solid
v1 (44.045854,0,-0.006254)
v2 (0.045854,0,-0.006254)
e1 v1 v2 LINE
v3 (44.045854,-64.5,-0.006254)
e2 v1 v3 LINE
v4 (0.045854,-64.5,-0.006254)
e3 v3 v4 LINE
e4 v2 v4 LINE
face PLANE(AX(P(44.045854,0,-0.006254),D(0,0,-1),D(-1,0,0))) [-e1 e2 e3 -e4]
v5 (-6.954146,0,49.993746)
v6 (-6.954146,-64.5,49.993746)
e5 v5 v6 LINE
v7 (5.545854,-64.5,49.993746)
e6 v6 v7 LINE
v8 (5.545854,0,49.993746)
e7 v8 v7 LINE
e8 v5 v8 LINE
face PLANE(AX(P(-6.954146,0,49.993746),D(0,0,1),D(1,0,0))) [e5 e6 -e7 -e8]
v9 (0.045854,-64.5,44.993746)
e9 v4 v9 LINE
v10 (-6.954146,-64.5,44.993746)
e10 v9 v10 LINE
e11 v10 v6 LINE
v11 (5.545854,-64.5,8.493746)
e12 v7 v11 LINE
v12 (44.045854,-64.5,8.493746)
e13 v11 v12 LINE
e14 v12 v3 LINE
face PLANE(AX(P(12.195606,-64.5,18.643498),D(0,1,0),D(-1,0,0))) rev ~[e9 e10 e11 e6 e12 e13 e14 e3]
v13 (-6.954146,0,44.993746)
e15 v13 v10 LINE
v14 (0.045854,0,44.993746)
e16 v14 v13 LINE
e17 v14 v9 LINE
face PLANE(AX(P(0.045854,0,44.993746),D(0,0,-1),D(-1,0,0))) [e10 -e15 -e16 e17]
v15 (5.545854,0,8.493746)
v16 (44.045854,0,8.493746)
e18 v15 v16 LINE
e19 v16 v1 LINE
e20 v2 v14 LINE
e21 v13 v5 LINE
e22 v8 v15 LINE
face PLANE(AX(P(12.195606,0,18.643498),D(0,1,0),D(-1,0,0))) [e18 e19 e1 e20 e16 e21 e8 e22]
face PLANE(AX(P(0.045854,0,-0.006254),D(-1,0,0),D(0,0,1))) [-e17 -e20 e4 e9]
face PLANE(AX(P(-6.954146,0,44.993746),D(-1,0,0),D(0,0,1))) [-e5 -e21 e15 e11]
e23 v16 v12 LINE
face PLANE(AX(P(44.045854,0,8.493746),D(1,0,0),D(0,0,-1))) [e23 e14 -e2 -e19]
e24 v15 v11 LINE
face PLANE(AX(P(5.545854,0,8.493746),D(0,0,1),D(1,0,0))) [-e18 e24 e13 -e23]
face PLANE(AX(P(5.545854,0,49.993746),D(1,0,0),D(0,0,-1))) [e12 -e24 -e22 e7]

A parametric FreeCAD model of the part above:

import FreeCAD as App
import Part
import Sketcher

doc = App.newDocument("Part")
body = doc.addObject("PartDesign::Body", "Body")

# Sketch on XZ plane
sketch1 = doc.addObject("Sketcher::SketchObject", "Sketch")
body.addObject(sketch1)
sketch1.AttachmentSupport = (doc.XZ_Plane, [""])
sketch1.MapMode = "FlatFace"
sketch1.addGeometry([
    Part.LineSegment(App.Vector(0, 45, 0), App.Vector(0, 0, 0)),  # 0
    Part.LineSegment(App.Vector(0, 0, 0), App.Vector(44, 0, 0)),  # 1
    Part.LineSegment(App.Vector(44, 0, 0), App.Vector(44, 8, 0)),  # 2
    Part.LineSegment(App.Vector(44, 8, 0), App.Vector(6, 8, 0)),  # 3
    Part.LineSegment(App.Vector(6, 8, 0), App.Vector(6, 50, 0)),  # 4
    Part.LineSegment(App.Vector(6, 50, 0), App.Vector(-7, 50, 0)),  # 5
    Part.LineSegment(App.Vector(-7, 50, 0), App.Vector(-7, 45, 0)),  # 6
    Part.LineSegment(App.Vector(-7, 45, 0), App.Vector(0, 45, 0)),  # 7
], False)
sketch1.addConstraint([
    Sketcher.Constraint("Coincident", 0, 2, 1, 1),
    Sketcher.Constraint("Coincident", 1, 2, 2, 1),
    Sketcher.Constraint("Coincident", 2, 2, 3, 1),
    Sketcher.Constraint("Coincident", 3, 2, 4, 1),
    Sketcher.Constraint("Coincident", 4, 2, 5, 1),
    Sketcher.Constraint("Coincident", 5, 2, 6, 1),
    Sketcher.Constraint("Coincident", 6, 2, 7, 1),
    Sketcher.Constraint("Coincident", 7, 2, 0, 1),
    Sketcher.Constraint("Vertical", 0),
    Sketcher.Constraint("Horizontal", 1),
    Sketcher.Constraint("Vertical", 2),
    Sketcher.Constraint("Horizontal", 3),
    Sketcher.Constraint("Vertical", 4),
    Sketcher.Constraint("Horizontal", 5),
    Sketcher.Constraint("Vertical", 6),
    Sketcher.Constraint("Horizontal", 7),
    Sketcher.Constraint("DistanceX", 1, 1, 1, 2, 44.0),
    Sketcher.Constraint("DistanceX", 7, 1, 7, 2, 7.0),
    Sketcher.Constraint("DistanceY", 0, 2, 0, 1, 45.0),
    Sketcher.Constraint("DistanceY", 6, 2, 6, 1, 5.0),
    Sketcher.Constraint("DistanceX", 3, 2, 3, 1, 38.5),
    Sketcher.Constraint("DistanceY", 2, 1, 2, 2, 8.5),
    Sketcher.Constraint("DistanceX", -1, 1, 0, 2, 0.045854),
    Sketcher.Constraint("DistanceY", 0, 2, -1, 1, 0.006254),
])
pad1 = doc.addObject("PartDesign::Pad", "Pad")
body.addObject(pad1)
pad1.Profile = sketch1
pad1.Length = 64.5

doc.recompute()
